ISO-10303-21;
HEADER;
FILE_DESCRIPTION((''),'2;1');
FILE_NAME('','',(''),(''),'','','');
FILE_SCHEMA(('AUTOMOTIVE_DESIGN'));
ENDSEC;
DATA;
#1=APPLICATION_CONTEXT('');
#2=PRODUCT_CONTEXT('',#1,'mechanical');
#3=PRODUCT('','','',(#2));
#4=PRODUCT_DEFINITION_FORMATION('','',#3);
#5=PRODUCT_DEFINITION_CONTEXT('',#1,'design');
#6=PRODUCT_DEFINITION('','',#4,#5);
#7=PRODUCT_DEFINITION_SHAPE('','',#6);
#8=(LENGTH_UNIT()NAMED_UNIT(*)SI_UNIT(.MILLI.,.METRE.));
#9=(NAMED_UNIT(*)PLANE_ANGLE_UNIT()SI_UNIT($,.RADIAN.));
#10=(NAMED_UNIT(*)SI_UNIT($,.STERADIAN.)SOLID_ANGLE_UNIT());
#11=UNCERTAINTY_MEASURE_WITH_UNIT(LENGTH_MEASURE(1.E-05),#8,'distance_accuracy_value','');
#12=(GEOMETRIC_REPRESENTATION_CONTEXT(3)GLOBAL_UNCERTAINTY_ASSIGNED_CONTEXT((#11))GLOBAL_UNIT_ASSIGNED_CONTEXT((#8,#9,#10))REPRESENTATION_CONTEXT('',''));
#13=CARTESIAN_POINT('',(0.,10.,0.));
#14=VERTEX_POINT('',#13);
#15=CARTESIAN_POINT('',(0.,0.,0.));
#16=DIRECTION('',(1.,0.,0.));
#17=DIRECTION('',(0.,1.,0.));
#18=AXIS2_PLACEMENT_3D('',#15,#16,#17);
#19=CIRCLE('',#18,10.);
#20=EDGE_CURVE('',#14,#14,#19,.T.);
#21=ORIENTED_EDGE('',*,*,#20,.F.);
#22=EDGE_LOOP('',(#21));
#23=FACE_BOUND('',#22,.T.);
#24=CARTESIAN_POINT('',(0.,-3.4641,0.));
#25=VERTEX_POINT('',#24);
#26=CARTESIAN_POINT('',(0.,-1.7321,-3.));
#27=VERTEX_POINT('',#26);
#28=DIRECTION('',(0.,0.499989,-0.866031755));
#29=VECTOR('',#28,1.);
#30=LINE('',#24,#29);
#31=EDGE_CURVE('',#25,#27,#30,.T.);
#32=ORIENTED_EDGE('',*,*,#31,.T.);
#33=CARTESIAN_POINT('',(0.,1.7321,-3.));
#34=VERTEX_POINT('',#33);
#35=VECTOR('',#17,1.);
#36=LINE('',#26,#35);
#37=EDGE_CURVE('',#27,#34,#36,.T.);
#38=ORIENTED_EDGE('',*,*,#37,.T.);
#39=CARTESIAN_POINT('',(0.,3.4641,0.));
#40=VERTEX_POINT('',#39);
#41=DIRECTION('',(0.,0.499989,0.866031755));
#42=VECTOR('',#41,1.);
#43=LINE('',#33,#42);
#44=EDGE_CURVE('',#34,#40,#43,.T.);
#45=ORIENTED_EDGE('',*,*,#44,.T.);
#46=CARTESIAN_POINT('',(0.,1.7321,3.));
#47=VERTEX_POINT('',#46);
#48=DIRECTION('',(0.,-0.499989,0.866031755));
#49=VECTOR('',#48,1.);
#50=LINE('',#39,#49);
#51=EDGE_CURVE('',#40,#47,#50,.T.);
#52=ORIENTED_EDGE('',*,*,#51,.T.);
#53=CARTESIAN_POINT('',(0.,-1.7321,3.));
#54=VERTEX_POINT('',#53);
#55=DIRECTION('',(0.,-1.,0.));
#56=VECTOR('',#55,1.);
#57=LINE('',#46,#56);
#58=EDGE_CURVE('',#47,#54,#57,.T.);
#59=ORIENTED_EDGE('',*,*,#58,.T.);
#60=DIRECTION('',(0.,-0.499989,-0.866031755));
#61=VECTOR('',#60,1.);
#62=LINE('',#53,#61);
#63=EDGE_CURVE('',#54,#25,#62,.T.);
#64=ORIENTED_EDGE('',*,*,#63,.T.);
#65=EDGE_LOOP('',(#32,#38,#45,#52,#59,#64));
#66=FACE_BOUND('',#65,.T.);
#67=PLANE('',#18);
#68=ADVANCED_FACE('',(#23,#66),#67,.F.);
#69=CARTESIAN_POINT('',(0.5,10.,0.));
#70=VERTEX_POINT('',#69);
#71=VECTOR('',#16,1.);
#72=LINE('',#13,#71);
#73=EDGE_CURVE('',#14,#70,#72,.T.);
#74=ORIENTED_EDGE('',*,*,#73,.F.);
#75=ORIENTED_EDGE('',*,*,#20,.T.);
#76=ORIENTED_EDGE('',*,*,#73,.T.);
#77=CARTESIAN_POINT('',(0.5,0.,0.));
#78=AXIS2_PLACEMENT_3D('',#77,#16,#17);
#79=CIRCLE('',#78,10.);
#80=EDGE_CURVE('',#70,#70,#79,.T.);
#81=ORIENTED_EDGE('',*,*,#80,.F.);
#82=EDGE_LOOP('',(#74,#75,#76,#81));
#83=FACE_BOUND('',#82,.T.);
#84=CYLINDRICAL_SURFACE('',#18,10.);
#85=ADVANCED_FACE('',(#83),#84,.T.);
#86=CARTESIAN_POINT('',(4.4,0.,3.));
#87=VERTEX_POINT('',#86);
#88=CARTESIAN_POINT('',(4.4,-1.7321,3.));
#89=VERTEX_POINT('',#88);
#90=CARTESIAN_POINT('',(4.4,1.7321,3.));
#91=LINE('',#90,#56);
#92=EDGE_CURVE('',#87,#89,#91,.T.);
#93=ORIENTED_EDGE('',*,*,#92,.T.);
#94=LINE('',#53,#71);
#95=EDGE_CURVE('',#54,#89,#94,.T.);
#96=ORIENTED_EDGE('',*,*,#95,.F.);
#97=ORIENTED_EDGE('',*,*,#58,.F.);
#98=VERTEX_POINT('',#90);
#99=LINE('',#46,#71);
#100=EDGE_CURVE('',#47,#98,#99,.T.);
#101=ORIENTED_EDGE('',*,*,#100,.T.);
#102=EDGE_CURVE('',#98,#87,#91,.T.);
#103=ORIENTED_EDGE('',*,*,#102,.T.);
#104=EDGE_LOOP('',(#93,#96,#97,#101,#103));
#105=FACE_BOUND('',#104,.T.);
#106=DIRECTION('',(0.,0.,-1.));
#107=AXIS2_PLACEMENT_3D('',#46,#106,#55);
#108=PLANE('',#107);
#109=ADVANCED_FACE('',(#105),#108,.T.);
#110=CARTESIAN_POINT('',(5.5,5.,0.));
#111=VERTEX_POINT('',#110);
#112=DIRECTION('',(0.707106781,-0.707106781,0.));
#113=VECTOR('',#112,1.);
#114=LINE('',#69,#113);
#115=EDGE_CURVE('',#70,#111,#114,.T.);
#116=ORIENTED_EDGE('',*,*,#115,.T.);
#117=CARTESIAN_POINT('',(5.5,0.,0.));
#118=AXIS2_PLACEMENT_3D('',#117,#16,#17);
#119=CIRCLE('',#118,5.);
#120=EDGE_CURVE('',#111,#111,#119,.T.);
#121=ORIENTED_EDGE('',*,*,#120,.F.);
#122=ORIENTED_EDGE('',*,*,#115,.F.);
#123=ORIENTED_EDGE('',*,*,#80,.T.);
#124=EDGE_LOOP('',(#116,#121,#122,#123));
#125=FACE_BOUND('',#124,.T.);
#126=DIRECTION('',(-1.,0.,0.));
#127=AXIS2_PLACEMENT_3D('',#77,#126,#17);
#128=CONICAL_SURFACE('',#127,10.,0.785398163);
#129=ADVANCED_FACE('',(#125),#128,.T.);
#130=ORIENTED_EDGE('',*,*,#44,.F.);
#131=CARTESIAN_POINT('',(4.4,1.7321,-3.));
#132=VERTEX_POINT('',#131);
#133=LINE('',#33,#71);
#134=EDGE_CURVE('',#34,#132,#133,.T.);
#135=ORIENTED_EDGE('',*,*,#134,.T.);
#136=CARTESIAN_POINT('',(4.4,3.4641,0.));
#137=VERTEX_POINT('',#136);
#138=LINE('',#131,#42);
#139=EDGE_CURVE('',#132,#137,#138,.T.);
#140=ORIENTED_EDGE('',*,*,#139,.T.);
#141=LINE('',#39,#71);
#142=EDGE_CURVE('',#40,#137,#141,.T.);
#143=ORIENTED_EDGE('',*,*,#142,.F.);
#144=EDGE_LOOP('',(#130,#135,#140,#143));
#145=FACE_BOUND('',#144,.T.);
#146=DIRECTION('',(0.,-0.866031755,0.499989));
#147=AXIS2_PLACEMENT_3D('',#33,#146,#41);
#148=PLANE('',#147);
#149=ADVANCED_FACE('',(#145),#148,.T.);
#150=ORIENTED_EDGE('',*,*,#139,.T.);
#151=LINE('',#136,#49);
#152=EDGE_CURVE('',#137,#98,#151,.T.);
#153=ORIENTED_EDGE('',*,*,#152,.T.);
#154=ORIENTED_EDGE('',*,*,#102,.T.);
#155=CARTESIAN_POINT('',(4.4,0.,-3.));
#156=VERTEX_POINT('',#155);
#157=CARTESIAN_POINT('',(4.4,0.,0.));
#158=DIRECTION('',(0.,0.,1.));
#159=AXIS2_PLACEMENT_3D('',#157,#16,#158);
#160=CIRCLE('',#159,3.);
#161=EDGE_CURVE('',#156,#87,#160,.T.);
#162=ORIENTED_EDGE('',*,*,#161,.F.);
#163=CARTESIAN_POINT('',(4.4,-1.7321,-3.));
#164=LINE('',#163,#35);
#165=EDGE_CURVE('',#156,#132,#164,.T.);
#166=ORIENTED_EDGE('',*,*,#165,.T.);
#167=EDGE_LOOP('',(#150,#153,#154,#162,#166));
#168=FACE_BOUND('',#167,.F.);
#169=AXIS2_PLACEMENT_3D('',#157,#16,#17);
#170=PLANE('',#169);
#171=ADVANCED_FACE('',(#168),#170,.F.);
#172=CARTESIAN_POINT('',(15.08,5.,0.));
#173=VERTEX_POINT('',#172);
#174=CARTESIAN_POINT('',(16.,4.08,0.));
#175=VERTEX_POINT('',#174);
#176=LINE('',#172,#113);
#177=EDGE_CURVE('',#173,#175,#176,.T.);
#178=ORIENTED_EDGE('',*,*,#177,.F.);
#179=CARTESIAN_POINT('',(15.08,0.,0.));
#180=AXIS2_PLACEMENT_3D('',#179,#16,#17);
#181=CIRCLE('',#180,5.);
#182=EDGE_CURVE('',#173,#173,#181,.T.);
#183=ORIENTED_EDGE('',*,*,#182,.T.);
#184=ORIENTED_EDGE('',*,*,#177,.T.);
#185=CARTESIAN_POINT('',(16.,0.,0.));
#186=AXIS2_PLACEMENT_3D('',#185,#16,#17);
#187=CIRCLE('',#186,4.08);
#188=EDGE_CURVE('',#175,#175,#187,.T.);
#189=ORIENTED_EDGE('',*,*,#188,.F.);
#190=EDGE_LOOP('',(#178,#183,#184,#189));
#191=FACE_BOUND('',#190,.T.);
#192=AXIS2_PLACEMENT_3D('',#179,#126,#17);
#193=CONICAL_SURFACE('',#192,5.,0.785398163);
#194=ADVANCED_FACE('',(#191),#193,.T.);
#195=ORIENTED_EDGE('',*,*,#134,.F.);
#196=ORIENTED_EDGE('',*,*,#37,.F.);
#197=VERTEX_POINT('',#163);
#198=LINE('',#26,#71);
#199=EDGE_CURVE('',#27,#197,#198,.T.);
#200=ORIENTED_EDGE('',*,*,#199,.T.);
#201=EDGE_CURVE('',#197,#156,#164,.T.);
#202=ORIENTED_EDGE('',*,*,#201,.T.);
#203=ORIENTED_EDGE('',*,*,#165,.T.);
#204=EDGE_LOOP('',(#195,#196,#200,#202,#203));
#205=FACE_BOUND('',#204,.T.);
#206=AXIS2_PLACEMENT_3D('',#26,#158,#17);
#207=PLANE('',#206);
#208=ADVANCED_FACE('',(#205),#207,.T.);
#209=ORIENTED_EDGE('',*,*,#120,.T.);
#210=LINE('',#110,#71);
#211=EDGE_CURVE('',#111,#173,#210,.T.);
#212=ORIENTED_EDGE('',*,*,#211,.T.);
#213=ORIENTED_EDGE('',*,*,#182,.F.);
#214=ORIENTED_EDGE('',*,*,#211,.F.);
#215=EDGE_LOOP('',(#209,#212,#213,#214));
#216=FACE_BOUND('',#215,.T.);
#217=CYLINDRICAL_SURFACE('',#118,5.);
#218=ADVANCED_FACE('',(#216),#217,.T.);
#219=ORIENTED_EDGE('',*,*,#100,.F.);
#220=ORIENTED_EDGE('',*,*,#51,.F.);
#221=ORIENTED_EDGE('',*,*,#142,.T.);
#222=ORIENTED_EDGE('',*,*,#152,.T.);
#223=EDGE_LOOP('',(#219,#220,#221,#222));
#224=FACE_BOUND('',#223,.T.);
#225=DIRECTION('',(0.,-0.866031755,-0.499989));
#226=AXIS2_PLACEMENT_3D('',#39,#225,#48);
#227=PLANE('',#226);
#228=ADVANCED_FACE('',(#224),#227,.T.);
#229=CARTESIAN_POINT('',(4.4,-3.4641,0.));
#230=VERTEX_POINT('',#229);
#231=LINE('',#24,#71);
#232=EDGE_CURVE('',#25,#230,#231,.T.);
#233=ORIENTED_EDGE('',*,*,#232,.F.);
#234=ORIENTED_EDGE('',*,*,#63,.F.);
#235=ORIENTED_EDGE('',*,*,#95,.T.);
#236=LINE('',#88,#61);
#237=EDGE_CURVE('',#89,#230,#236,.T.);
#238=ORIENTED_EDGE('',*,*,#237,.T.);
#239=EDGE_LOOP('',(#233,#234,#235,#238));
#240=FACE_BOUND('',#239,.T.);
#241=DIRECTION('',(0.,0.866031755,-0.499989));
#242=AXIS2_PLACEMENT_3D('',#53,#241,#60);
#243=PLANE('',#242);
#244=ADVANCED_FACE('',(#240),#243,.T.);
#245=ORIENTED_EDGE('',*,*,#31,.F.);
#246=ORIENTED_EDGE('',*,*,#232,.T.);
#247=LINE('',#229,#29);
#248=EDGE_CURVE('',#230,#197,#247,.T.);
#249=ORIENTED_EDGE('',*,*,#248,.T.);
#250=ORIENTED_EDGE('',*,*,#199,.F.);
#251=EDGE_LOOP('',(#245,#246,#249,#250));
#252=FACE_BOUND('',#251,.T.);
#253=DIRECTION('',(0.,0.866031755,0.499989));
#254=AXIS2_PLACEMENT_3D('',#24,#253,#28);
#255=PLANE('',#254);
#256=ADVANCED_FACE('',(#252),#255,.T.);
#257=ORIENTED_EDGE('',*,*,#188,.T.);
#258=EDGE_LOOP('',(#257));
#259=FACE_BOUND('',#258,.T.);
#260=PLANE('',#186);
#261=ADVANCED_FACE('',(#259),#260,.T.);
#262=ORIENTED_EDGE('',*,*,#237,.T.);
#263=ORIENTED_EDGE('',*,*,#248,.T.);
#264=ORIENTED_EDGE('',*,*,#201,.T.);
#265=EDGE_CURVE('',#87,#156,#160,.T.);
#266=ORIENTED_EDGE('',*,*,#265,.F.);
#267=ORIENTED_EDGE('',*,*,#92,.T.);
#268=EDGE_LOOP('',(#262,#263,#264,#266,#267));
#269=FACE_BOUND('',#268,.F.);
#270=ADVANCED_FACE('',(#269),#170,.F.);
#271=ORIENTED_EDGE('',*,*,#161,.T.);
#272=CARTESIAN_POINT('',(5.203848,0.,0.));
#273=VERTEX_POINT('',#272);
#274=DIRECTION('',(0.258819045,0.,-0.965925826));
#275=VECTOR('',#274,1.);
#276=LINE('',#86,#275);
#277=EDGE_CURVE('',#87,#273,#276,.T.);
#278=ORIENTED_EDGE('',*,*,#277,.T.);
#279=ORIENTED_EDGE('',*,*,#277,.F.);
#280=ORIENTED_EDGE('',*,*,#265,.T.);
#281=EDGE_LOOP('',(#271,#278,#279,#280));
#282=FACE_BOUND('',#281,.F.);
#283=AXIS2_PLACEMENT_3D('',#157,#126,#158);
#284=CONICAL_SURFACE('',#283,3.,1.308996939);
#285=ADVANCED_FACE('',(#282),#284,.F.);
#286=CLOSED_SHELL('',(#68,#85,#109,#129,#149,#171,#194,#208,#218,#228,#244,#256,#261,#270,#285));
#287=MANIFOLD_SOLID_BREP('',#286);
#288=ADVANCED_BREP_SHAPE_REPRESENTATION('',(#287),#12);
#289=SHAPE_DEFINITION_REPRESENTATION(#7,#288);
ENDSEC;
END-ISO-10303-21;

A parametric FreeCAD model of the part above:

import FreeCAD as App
import Part
import Sketcher

V = App.Vector
Q = App.Units.Quantity

doc = App.newDocument("Part")
params = doc.addObject("Spreadsheet::Sheet", "Params")
for row, (alias, value) in enumerate([
    ("sketch1_width", "16 mm"),
    ("sketch1_height", "10 mm"),
    ("sketch1_width2", "0.5 mm"),
    ("sketch1_width3", "9.58 mm"),
    ("revolution_angle", "360 deg"),
    ("sketch2_diameter", "6 mm"),
    ("hole_diameter", "6 mm"),
    ("hole_depth", "4.4 mm"),
    ("pocket1_length", "4.4 mm"),
], start=1):
    params.set(f"A{row}", alias)
    params.set(f"B{row}", "=" + value)
    params.setAlias(f"B{row}", alias)

body = doc.addObject("PartDesign::Body", "Body")

# Sketch on XY plane
sketch1 = body.newObject("Sketcher::SketchObject", "Sketch")
sketch1.AttachmentSupport = (doc.getObject("XY_Plane"), [""])
sketch1.MapMode = "FlatFace"
sketch1.addGeometry([
    Part.LineSegment(V(0, 0, 0), V(16, 0, 0)),  # 0
    Part.LineSegment(V(16, 0, 0), V(16, 4.1, 0)),  # 1
    Part.LineSegment(V(16, 4.1, 0), V(15.1, 5, 0)),  # 2
    Part.LineSegment(V(15.1, 5, 0), V(5.5, 5, 0)),  # 3
    Part.LineSegment(V(5.5, 5, 0), V(0.5, 10, 0)),  # 4
    Part.LineSegment(V(0.5, 10, 0), V(0, 10, 0)),  # 5
    Part.LineSegment(V(0, 10, 0), V(0, 0, 0)),  # 6
], False)
sketch1.addConstraint([
    Sketcher.Constraint("Coincident", 0, 2, 1, 1),
    Sketcher.Constraint("Coincident", 1, 2, 2, 1),
    Sketcher.Constraint("Coincident", 2, 2, 3, 1),
    Sketcher.Constraint("Coincident", 3, 2, 4, 1),
    Sketcher.Constraint("Coincident", 4, 2, 5, 1),
    Sketcher.Constraint("Coincident", 5, 2, 6, 1),
    Sketcher.Constraint("Coincident", 6, 2, 0, 1),
    Sketcher.Constraint("Horizontal", 0),
    Sketcher.Constraint("Vertical", 1),
    Sketcher.Constraint("Horizontal", 3),
    Sketcher.Constraint("Horizontal", 5),
    Sketcher.Constraint("Vertical", 6),
    Sketcher.Constraint("Coincident", 6, 2, -1, 1),
    Sketcher.Constraint("Parallel", 2, 4),
    Sketcher.Constraint("DistanceX", 0, 1, 0, 2, 16.0),
    Sketcher.Constraint("DistanceY", 6, 2, 6, 1, 10.0),
    Sketcher.Constraint("Angle", 2, Q("135 deg")),
    Sketcher.Constraint("DistanceX", 5, 2, 5, 1, 0.5),
    Sketcher.Constraint("DistanceY", -1, 1, 2, 2, 5.0),
    Sketcher.Constraint("DistanceX", 3, 2, 3, 1, 9.58),
])
sketch1.setExpression("Constraints[14]", "Params.sketch1_width")
sketch1.setExpression("Constraints[15]", "Params.sketch1_height")
sketch1.setExpression("Constraints[17]", "Params.sketch1_width2")
sketch1.setExpression("Constraints[19]", "Params.sketch1_width3")
revolution = body.newObject("PartDesign::Revolution", "Revolution")
revolution.Profile = sketch1
revolution.ReferenceAxis = (sketch1, ["H_Axis"])
revolution.setExpression("Angle", "Params.revolution_angle")

# Sketch on YZ plane
sketch2 = body.newObject("Sketcher::SketchObject", "Sketch001")
sketch2.AttachmentSupport = (doc.getObject("YZ_Plane"), [""])
sketch2.MapMode = "FlatFace"
sketch2.addGeometry(Part.Circle(V(0, 0, 0), V(0, 0, 1), 3), False)
sketch2.addConstraint([
    Sketcher.Constraint("Coincident", 0, 3, -1, 1),
    Sketcher.Constraint("Diameter", 0, 6.0),
])
sketch2.setExpression("Constraints[1]", "Params.sketch2_diameter")
doc.recompute()
hole = body.newObject("PartDesign::Hole", "Hole")
hole.Profile = sketch2
hole.ThreadType = "None"
hole.setExpression("Diameter", "Params.hole_diameter")
hole.DepthType = "Dimension"
hole.setExpression("Depth", "Params.hole_depth")
hole.DrillPoint = "Angled"
hole.DrillPointAngle = 150
hole.Reversed = True

# Sketch on YZ plane
sketch3 = body.newObject("Sketcher::SketchObject", "Sketch002")
sketch3.AttachmentSupport = (doc.getObject("YZ_Plane"), [""])
sketch3.MapMode = "FlatFace"
sketch3.addGeometry([
    Part.LineSegment(V(1.7, 3, 0), V(-1.7, 3, 0)),  # 0
    Part.LineSegment(V(-1.7, 3, 0), V(-3.5, 0, 0)),  # 1
    Part.LineSegment(V(-3.5, 0, 0), V(-1.7, -3, 0)),  # 2
    Part.LineSegment(V(-1.7, -3, 0), V(1.7, -3, 0)),  # 3
    Part.LineSegment(V(1.7, -3, 0), V(3.5, 0, 0)),  # 4
    Part.LineSegment(V(3.5, 0, 0), V(1.7, 3, 0)),  # 5
], False)
sketch3.addConstraint([
    Sketcher.Constraint("Coincident", 0, 2, 1, 1),
    Sketcher.Constraint("Coincident", 1, 2, 2, 1),
    Sketcher.Constraint("Coincident", 2, 2, 3, 1),
    Sketcher.Constraint("Coincident", 3, 2, 4, 1),
    Sketcher.Constraint("Coincident", 4, 2, 5, 1),
    Sketcher.Constraint("Coincident", 5, 2, 0, 1),
    Sketcher.Constraint("Horizontal", 0),
    Sketcher.Constraint("Horizontal", 3),
    Sketcher.Constraint("Symmetric", 0, 2, 3, 2, -1, 1),
    Sketcher.Constraint("Symmetric", 1, 2, 4, 2, -1, 1),
    Sketcher.Constraint("PointOnObject", 1, 2, -1),
    Sketcher.Constraint("Parallel", 2, 5),
    Sketcher.Constraint("Vertical", 0, 2, 2, 2),
    Sketcher.Constraint("Angle", 1, Q("-119.9993 deg")),
    Sketcher.Constraint("DistanceY", -1, 1, 0, 2, 3.0),
    Sketcher.Constraint("DistanceX", 0, 2, 0, 1, 3.4642),
])
pocket1 = body.newObject("PartDesign::Pocket", "Pocket")
pocket1.Profile = sketch3
pocket1.setExpression("Length", "Params.pocket1_length")
pocket1.Reversed = True

doc.recompute()
